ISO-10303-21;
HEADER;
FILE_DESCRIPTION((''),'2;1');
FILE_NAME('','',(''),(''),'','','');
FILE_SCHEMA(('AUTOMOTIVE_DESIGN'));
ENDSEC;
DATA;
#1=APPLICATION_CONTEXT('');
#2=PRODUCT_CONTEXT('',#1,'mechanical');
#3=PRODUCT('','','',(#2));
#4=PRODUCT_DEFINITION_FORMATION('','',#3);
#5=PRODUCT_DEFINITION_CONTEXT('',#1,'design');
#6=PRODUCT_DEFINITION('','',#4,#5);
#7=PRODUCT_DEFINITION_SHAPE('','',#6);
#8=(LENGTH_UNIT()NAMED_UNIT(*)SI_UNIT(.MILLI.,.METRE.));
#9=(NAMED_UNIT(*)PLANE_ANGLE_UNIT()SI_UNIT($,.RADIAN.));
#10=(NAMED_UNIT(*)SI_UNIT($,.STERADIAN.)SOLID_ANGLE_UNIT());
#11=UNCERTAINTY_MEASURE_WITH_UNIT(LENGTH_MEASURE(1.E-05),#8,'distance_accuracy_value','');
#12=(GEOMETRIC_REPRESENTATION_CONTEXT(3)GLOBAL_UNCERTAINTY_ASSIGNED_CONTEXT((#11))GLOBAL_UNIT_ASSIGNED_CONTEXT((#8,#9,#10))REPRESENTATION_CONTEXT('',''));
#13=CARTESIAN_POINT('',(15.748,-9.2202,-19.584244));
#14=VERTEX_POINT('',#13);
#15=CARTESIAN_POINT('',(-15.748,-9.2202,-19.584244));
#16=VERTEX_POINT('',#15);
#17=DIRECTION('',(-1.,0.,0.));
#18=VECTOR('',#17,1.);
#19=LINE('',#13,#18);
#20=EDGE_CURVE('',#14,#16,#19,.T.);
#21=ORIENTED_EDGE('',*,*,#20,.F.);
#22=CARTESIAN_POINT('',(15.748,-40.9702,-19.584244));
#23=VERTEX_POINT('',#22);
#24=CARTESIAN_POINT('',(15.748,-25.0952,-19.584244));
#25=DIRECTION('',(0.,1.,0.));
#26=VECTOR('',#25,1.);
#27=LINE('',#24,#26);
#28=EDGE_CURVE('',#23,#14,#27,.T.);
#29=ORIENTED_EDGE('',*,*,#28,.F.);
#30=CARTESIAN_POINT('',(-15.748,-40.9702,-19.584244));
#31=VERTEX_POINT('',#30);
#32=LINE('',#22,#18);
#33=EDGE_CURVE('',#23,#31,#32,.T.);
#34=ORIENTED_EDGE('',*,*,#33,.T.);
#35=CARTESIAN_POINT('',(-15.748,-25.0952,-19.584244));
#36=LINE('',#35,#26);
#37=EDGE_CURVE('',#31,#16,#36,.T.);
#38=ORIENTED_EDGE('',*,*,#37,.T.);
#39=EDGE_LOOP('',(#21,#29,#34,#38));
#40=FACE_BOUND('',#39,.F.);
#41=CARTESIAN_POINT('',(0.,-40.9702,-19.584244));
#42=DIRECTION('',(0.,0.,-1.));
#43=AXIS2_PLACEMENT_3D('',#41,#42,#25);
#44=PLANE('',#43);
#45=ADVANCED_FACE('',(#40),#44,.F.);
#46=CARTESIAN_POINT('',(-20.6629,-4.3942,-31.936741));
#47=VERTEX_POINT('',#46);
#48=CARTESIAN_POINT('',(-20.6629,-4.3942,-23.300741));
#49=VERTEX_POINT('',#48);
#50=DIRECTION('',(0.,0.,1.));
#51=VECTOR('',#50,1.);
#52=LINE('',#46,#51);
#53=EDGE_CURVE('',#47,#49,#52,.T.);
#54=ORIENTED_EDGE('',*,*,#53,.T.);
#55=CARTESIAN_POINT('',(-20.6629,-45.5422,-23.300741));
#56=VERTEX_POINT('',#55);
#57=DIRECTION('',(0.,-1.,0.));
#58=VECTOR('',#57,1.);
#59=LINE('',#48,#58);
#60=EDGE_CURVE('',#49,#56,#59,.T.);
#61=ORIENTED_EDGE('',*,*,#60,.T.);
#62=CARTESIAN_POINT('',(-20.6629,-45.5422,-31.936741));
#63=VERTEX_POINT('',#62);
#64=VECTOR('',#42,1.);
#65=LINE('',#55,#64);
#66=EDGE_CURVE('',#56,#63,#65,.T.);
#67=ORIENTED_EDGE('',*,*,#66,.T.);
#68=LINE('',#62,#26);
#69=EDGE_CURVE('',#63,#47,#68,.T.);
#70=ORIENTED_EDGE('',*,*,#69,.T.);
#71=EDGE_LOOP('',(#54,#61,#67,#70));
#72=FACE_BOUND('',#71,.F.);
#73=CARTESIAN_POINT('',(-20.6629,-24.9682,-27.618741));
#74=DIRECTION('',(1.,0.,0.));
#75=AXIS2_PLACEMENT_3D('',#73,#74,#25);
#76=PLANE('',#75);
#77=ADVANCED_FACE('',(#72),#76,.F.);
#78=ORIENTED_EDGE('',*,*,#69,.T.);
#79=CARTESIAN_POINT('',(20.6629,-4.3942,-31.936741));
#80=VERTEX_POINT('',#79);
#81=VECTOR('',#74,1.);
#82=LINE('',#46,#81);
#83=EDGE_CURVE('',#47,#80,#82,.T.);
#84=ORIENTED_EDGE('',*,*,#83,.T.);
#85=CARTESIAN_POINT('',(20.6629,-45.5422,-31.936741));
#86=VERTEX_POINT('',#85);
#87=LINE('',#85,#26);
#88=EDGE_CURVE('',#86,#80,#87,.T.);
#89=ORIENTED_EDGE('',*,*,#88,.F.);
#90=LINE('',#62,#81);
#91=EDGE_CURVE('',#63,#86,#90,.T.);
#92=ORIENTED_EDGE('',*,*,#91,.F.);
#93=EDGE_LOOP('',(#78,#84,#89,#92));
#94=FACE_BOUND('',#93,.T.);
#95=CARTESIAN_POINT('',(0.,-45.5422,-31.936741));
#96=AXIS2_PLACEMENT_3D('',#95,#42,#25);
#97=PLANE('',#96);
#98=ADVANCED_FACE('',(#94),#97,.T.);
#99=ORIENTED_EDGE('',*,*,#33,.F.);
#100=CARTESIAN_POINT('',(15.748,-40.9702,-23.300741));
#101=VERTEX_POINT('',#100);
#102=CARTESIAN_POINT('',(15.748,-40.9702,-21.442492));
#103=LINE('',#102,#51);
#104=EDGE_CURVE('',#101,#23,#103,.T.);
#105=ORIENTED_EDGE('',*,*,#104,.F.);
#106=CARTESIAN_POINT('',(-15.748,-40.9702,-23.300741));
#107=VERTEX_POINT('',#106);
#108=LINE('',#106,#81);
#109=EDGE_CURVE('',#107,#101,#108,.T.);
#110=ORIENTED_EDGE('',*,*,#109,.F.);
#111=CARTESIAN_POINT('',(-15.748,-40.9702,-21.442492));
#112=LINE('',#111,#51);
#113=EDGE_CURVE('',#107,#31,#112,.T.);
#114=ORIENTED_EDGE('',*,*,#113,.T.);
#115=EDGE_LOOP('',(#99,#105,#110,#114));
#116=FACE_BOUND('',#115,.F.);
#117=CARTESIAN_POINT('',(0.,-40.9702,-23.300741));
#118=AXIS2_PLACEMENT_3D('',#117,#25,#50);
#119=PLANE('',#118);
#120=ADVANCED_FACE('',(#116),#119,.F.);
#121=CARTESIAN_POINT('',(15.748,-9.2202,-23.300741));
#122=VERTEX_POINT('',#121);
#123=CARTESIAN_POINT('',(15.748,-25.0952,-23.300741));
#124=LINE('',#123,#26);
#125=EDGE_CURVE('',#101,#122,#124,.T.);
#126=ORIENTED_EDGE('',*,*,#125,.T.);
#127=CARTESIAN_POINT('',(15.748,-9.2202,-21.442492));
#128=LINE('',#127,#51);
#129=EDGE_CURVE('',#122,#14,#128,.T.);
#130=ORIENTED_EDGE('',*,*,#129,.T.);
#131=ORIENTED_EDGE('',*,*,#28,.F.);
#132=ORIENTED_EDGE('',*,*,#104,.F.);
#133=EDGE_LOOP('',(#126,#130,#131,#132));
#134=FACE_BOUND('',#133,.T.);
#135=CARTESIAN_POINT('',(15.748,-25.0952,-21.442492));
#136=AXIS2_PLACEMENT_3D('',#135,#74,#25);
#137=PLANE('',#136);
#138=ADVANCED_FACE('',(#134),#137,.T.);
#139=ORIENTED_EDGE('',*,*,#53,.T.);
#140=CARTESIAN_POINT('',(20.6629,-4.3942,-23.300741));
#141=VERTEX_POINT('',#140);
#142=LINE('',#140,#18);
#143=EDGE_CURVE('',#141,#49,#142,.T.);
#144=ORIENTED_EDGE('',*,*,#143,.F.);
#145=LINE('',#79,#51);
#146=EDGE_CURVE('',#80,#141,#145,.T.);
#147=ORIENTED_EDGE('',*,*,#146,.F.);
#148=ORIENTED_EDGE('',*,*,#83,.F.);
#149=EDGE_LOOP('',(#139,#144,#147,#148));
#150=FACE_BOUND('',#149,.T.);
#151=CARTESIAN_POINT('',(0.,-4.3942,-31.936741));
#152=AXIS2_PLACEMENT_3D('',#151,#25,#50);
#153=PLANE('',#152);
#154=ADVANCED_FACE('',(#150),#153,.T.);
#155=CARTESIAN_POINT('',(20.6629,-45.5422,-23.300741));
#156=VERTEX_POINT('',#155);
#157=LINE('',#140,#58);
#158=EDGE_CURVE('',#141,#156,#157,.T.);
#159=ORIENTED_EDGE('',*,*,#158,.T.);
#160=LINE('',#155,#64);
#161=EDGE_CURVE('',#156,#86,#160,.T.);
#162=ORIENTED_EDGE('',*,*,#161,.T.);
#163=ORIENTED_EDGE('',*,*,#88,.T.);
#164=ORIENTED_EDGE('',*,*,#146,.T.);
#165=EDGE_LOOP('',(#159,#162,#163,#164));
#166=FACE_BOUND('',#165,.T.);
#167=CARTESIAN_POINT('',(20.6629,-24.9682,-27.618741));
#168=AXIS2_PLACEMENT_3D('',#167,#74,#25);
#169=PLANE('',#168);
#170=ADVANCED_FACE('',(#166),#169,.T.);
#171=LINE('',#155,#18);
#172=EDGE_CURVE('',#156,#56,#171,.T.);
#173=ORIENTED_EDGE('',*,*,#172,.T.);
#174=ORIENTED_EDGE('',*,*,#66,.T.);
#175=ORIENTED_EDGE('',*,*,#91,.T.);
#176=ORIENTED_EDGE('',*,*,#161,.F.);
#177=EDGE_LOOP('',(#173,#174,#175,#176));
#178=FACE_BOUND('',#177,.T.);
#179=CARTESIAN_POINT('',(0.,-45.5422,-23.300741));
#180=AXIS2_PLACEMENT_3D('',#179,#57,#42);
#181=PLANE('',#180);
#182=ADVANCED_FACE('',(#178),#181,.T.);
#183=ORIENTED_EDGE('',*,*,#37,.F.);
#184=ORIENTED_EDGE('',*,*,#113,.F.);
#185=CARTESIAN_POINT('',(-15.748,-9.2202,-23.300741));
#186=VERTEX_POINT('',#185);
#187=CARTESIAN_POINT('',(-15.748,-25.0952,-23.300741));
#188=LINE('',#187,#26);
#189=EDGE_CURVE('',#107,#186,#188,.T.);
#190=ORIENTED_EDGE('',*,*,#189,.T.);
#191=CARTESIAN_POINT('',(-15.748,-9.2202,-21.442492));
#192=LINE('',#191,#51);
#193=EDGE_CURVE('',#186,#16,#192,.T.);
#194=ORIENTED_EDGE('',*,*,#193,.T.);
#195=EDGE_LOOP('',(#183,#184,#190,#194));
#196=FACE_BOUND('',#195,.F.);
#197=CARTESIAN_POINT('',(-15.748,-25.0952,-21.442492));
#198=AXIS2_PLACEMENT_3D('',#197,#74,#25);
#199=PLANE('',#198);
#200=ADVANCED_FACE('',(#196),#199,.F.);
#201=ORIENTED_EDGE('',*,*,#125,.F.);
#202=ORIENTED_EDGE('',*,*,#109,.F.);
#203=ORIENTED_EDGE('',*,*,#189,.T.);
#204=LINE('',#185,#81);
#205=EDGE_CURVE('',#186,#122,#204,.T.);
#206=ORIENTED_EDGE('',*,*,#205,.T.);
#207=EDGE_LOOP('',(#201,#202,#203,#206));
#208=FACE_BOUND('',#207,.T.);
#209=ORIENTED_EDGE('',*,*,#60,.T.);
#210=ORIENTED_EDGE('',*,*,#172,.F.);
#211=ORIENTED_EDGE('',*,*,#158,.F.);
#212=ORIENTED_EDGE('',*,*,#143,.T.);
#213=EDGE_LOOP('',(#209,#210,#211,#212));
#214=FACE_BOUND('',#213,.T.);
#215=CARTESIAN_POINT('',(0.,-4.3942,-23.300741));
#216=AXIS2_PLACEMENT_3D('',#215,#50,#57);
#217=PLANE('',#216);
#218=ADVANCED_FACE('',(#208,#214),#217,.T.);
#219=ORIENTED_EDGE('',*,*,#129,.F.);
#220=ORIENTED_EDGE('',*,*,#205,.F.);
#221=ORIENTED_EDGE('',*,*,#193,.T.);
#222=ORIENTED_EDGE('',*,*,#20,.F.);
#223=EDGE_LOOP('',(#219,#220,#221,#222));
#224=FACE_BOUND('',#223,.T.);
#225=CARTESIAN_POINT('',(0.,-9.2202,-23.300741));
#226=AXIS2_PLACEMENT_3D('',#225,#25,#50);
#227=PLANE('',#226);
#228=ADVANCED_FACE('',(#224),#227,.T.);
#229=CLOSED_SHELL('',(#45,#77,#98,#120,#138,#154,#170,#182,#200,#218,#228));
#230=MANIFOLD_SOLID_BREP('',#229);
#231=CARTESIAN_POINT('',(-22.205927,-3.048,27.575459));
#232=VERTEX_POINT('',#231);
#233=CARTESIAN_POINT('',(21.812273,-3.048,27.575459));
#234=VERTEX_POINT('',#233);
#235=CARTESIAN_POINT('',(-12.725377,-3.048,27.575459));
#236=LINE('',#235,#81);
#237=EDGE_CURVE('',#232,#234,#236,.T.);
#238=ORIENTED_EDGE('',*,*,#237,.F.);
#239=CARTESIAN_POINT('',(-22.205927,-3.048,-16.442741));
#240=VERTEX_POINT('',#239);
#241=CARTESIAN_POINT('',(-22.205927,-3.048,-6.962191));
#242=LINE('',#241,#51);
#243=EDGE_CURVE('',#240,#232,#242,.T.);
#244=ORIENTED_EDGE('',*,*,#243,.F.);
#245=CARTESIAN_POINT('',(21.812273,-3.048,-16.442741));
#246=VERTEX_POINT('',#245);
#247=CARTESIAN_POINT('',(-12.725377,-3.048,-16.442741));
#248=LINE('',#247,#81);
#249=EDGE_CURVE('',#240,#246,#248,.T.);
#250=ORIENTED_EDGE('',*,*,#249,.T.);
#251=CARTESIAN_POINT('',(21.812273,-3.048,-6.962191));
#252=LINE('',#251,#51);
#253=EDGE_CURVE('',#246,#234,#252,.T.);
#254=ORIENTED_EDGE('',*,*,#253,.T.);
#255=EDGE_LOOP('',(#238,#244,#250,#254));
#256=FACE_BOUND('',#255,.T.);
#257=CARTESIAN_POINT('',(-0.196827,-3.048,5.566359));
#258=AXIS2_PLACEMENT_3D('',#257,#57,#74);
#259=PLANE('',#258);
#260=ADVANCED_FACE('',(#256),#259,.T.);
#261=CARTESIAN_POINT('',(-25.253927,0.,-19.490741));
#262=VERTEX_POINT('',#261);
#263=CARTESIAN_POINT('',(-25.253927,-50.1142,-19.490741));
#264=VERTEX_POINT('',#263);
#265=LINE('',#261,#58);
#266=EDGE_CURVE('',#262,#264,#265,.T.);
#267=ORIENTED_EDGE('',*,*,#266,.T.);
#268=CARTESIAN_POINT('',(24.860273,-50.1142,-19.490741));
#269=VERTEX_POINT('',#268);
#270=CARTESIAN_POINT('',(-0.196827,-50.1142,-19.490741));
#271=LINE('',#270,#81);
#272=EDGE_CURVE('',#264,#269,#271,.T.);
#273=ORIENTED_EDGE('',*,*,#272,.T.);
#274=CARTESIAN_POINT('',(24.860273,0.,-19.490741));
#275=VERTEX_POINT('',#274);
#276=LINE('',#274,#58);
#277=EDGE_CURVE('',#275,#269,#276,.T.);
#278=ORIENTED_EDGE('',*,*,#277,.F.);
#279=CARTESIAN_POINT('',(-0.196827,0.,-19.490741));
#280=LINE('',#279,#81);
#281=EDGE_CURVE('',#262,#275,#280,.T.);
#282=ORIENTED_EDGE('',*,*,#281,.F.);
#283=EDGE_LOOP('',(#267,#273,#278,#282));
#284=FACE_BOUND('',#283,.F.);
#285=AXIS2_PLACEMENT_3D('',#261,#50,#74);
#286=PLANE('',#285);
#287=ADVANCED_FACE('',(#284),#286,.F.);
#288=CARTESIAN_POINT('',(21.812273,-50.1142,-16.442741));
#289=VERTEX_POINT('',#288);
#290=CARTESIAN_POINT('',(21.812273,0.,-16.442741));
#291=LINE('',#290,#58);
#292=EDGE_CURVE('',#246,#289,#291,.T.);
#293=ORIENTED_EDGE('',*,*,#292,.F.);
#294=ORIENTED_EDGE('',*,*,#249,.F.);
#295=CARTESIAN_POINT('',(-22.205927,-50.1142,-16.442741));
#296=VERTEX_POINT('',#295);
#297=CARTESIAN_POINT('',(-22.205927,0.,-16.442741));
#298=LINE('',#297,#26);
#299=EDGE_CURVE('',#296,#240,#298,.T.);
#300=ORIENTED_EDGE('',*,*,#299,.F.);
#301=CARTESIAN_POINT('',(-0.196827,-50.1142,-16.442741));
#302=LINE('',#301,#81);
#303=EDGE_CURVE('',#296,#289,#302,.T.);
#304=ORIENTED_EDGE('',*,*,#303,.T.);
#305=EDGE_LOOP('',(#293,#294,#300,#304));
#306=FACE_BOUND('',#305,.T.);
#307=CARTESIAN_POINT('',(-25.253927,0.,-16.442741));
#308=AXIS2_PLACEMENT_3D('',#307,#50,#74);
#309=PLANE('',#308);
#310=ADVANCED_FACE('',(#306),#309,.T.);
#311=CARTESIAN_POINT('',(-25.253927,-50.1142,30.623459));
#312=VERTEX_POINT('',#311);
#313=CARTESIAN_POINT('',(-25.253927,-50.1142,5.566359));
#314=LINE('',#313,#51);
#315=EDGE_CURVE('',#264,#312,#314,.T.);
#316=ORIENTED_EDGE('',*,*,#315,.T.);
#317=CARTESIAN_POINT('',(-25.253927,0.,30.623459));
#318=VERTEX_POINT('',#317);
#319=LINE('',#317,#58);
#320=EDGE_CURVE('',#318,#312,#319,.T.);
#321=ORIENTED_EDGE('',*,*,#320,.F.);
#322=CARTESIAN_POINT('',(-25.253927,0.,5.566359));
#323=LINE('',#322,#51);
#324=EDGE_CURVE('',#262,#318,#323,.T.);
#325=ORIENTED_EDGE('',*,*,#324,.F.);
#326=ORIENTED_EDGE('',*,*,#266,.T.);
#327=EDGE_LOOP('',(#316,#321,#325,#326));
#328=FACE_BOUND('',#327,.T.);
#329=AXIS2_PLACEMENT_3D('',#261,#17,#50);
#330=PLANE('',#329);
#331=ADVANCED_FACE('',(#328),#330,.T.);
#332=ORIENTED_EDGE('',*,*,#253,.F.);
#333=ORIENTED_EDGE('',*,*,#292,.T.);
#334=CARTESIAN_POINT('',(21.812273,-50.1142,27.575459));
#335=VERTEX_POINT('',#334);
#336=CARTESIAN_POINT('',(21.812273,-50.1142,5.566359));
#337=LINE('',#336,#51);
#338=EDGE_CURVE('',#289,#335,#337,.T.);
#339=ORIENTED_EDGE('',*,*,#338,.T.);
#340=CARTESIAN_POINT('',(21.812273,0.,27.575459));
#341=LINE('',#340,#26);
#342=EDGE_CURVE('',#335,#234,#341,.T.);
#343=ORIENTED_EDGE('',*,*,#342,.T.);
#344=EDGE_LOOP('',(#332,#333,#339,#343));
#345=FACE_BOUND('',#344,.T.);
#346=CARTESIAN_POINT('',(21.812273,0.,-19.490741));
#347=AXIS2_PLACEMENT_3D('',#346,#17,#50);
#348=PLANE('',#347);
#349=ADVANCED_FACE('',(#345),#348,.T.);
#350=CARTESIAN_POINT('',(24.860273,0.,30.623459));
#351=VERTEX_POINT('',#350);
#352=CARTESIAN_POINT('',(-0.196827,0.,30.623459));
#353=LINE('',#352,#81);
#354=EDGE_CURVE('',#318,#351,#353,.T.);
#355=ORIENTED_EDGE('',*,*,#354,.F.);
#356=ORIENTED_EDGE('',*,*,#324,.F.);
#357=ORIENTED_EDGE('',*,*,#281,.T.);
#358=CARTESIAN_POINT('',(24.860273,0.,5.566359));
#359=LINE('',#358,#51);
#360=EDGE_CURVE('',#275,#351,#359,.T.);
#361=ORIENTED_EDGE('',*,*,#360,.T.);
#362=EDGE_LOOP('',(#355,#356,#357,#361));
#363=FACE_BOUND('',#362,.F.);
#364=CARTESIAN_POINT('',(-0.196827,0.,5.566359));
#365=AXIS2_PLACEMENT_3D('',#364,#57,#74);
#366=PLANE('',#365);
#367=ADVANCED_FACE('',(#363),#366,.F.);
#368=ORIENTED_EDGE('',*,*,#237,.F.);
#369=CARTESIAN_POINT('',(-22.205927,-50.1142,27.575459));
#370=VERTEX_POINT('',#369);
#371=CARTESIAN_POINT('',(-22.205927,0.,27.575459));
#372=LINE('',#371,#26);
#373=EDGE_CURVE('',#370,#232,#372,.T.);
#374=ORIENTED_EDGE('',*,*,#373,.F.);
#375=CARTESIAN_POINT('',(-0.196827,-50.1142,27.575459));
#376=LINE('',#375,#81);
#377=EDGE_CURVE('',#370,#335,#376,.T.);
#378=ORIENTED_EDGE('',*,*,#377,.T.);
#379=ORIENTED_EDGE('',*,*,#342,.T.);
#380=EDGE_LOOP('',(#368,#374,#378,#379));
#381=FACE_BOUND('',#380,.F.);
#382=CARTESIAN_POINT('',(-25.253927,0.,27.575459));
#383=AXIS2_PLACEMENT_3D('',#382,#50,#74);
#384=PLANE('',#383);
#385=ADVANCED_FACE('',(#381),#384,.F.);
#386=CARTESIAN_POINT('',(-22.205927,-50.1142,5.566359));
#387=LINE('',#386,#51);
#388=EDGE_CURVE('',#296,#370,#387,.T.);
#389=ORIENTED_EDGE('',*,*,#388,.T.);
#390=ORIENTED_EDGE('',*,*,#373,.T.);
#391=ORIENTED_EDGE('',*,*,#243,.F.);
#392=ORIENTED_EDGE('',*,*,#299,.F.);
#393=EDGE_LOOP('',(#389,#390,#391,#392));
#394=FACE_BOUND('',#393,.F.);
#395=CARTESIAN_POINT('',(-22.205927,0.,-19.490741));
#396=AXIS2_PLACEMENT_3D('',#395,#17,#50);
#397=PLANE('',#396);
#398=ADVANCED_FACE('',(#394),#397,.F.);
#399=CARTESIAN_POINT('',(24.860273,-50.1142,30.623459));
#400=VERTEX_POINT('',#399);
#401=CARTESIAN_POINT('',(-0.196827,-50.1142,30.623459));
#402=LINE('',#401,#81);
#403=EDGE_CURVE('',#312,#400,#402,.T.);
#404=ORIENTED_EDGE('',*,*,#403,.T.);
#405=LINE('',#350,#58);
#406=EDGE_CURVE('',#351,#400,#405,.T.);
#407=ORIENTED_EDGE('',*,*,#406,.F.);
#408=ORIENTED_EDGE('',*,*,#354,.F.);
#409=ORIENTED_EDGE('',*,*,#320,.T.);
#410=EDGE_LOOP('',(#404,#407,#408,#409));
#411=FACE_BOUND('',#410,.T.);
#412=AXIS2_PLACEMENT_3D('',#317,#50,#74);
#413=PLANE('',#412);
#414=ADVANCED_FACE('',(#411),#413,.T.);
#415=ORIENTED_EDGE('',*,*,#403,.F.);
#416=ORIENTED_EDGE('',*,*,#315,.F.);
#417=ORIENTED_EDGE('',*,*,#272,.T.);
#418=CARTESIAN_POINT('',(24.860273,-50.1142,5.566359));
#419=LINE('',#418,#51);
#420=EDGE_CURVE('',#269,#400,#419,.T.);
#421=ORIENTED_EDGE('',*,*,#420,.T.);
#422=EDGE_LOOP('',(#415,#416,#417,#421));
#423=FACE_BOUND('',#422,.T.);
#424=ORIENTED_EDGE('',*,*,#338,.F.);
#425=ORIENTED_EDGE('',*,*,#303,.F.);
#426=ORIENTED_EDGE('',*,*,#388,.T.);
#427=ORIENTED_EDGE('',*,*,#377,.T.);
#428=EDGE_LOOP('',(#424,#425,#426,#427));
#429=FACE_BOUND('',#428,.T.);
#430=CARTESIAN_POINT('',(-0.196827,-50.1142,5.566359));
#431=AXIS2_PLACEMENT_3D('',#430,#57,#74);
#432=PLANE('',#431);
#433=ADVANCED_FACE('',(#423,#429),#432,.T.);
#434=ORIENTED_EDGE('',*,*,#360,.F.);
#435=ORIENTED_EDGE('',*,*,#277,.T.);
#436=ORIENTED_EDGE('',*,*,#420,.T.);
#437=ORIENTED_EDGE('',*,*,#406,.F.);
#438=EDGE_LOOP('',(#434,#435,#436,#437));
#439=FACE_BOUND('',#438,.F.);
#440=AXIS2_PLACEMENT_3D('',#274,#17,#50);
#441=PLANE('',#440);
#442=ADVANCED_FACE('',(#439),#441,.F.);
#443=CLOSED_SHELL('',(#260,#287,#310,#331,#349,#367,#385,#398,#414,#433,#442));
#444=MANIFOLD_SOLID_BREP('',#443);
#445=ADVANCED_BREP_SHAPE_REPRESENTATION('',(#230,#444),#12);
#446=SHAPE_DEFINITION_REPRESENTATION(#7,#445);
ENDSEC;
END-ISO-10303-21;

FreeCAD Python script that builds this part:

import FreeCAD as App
import Part
import Sketcher
Q = App.Units.Quantity


def faces_at(feature, points):
    """Names of the faces that lie closest to the given points."""
    faces = feature.Shape.Faces
    near = lambda p: min(range(len(faces)), key=lambda i: faces[i].distToShape(Part.Vertex(*p))[0])
    return sorted({f"Face{near(p) + 1}" for p in points})

doc = App.newDocument("Part")
params = doc.addObject("Spreadsheet::Sheet", "Params")
for row, (alias, value) in enumerate([
    ("sketch1_width", "1.973 in"),
    ("pad1_length", "1.973 in"),
    ("thickness_wall", "0.12 in"),
    ("sketch2_width", "1.25 in"),
    ("pad2_length", "1.24 in"),
    ("sketch3_width", "1.62 in"),
    ("sketch3_height", "0.34 in"),
    ("pad3_length", "1.627 in"),
], start=1):
    params.set(f"A{row}", alias)
    params.set(f"B{row}", "=" + value)
    params.setAlias(f"B{row}", alias)

body = doc.addObject("PartDesign::Body", "Body")

# Sketch on XZ plane
sketch1 = body.newObject("Sketcher::SketchObject", "Sketch")
sketch1.AttachmentSupport = (doc.getObject("XZ_Plane"), [""])
sketch1.MapMode = "FlatFace"
sketch1.addGeometry([
    Part.LineSegment(App.Vector(-25.253927, 30.623459, 0), App.Vector(-25.253927, -19.490741, 0)),
    Part.LineSegment(App.Vector(-25.253927, -19.490741, 0), App.Vector(24.860273, -19.490741, 0)),
    Part.LineSegment(App.Vector(24.860273, -19.490741, 0), App.Vector(24.860273, 30.623459, 0)),
    Part.LineSegment(App.Vector(24.860273, 30.623459, 0), App.Vector(-25.253927, 30.623459, 0)),
], False)
sketch1.addConstraint([
    Sketcher.Constraint("Coincident", 0, 2, 1, 1),
    Sketcher.Constraint("Coincident", 1, 2, 2, 1),
    Sketcher.Constraint("Coincident", 2, 2, 3, 1),
    Sketcher.Constraint("Coincident", 3, 2, 0, 1),
    Sketcher.Constraint("Vertical", 0),
    Sketcher.Constraint("Horizontal", 1),
    Sketcher.Constraint("Vertical", 2),
    Sketcher.Constraint("Horizontal", 3),
    Sketcher.Constraint("Equal", 3, 0),
    Sketcher.Constraint("DistanceX", 1, 1, 1, 2, Q("1.973 in")),
    Sketcher.Constraint("DistanceY", 0, 2, -1, 1, 19.490741),
    Sketcher.Constraint("DistanceX", 0, 2, -1, 1, 25.253927),
])
sketch1.setExpression("Constraints[9]", "Params.sketch1_width")
pad1 = body.newObject("PartDesign::Pad", "Pad")
pad1.Profile = sketch1
pad1.setExpression("Length", "Params.pad1_length")
doc.recompute()

thickness = body.newObject("PartDesign::Thickness", "Thickness")
thickness.Base = (pad1, faces_at(pad1, [(-0.197, -50.114, 5.566)]))
thickness.setExpression("Value", "Params.thickness_wall")
thickness.Reversed = True
thickness.Join = "Arc"
body2 = doc.addObject("PartDesign::Body", "Body001")

# Sketch on YZ plane
sketch2 = body2.newObject("Sketcher::SketchObject", "Sketch001")
sketch2.AttachmentSupport = (doc.getObject("YZ_Plane001"), [""])
sketch2.MapMode = "FlatFace"
sketch2.addGeometry([
    Part.LineSegment(App.Vector(-40.9702, -19.584244, 0), App.Vector(-40.9702, -23.300741, 0)),
    Part.LineSegment(App.Vector(-40.9702, -23.300741, 0), App.Vector(-9.2202, -23.300741, 0)),
    Part.LineSegment(App.Vector(-9.2202, -23.300741, 0), App.Vector(-9.2202, -19.584244, 0)),
    Part.LineSegment(App.Vector(-9.2202, -19.584244, 0), App.Vector(-40.9702, -19.584244, 0)),
], False)
sketch2.addConstraint([
    Sketcher.Constraint("Coincident", 0, 2, 1, 1),
    Sketcher.Constraint("Coincident", 1, 2, 2, 1),
    Sketcher.Constraint("Coincident", 2, 2, 3, 1),
    Sketcher.Constraint("Coincident", 3, 2, 0, 1),
    Sketcher.Constraint("Vertical", 0),
    Sketcher.Constraint("Horizontal", 1),
    Sketcher.Constraint("Vertical", 2),
    Sketcher.Constraint("Horizontal", 3),
    Sketcher.Constraint("DistanceX", 1, 1, 1, 2, Q("1.25 in")),
    Sketcher.Constraint("DistanceX", 0, 2, -1, 1, Q("1.613 in")),
    Sketcher.Constraint("DistanceY", 0, 2, 0, 1, 3.716496),
    Sketcher.Constraint("DistanceY", 0, 2, -1, 1, 23.300741),
])
sketch2.setExpression("Constraints[8]", "Params.sketch2_width")
pad2 = body2.newObject("PartDesign::Pad", "Pad001")
pad2.Profile = sketch2
pad2.setExpression("Length", "Params.pad2_length")
pad2.Midplane = True

# Sketch on YZ plane
sketch3 = body2.newObject("Sketcher::SketchObject", "Sketch002")
sketch3.AttachmentSupport = (doc.getObject("YZ_Plane001"), [""])
sketch3.MapMode = "FlatFace"
sketch3.addGeometry([
    Part.LineSegment(App.Vector(-45.5422, -23.300741, 0), App.Vector(-45.5422, -31.936741, 0)),
    Part.LineSegment(App.Vector(-45.5422, -31.936741, 0), App.Vector(-4.3942, -31.936741, 0)),
    Part.LineSegment(App.Vector(-4.3942, -31.936741, 0), App.Vector(-4.3942, -23.300741, 0)),
    Part.LineSegment(App.Vector(-4.3942, -23.300741, 0), App.Vector(-45.5422, -23.300741, 0)),
], False)
sketch3.addConstraint([
    Sketcher.Constraint("Coincident", 0, 2, 1, 1),
    Sketcher.Constraint("Coincident", 1, 2, 2, 1),
    Sketcher.Constraint("Coincident", 2, 2, 3, 1),
    Sketcher.Constraint("Coincident", 3, 2, 0, 1),
    Sketcher.Constraint("Vertical", 0),
    Sketcher.Constraint("Horizontal", 1),
    Sketcher.Constraint("Vertical", 2),
    Sketcher.Constraint("Horizontal", 3),
    Sketcher.Constraint("DistanceX", 1, 1, 1, 2, Q("1.62 in")),
    Sketcher.Constraint("DistanceY", 0, 2, 0, 1, Q("0.34 in")),
    Sketcher.Constraint("DistanceX", 0, 2, -1, 1, Q("1.793 in")),
    Sketcher.Constraint("DistanceY", 0, 2, -1, 1, 31.936741),
])
sketch3.setExpression("Constraints[8]", "Params.sketch3_width")
sketch3.setExpression("Constraints[9]", "Params.sketch3_height")
pad3 = body2.newObject("PartDesign::Pad", "Pad002")
pad3.Profile = sketch3
pad3.setExpression("Length", "Params.pad3_length")
pad3.Midplane = True

doc.recompute()
